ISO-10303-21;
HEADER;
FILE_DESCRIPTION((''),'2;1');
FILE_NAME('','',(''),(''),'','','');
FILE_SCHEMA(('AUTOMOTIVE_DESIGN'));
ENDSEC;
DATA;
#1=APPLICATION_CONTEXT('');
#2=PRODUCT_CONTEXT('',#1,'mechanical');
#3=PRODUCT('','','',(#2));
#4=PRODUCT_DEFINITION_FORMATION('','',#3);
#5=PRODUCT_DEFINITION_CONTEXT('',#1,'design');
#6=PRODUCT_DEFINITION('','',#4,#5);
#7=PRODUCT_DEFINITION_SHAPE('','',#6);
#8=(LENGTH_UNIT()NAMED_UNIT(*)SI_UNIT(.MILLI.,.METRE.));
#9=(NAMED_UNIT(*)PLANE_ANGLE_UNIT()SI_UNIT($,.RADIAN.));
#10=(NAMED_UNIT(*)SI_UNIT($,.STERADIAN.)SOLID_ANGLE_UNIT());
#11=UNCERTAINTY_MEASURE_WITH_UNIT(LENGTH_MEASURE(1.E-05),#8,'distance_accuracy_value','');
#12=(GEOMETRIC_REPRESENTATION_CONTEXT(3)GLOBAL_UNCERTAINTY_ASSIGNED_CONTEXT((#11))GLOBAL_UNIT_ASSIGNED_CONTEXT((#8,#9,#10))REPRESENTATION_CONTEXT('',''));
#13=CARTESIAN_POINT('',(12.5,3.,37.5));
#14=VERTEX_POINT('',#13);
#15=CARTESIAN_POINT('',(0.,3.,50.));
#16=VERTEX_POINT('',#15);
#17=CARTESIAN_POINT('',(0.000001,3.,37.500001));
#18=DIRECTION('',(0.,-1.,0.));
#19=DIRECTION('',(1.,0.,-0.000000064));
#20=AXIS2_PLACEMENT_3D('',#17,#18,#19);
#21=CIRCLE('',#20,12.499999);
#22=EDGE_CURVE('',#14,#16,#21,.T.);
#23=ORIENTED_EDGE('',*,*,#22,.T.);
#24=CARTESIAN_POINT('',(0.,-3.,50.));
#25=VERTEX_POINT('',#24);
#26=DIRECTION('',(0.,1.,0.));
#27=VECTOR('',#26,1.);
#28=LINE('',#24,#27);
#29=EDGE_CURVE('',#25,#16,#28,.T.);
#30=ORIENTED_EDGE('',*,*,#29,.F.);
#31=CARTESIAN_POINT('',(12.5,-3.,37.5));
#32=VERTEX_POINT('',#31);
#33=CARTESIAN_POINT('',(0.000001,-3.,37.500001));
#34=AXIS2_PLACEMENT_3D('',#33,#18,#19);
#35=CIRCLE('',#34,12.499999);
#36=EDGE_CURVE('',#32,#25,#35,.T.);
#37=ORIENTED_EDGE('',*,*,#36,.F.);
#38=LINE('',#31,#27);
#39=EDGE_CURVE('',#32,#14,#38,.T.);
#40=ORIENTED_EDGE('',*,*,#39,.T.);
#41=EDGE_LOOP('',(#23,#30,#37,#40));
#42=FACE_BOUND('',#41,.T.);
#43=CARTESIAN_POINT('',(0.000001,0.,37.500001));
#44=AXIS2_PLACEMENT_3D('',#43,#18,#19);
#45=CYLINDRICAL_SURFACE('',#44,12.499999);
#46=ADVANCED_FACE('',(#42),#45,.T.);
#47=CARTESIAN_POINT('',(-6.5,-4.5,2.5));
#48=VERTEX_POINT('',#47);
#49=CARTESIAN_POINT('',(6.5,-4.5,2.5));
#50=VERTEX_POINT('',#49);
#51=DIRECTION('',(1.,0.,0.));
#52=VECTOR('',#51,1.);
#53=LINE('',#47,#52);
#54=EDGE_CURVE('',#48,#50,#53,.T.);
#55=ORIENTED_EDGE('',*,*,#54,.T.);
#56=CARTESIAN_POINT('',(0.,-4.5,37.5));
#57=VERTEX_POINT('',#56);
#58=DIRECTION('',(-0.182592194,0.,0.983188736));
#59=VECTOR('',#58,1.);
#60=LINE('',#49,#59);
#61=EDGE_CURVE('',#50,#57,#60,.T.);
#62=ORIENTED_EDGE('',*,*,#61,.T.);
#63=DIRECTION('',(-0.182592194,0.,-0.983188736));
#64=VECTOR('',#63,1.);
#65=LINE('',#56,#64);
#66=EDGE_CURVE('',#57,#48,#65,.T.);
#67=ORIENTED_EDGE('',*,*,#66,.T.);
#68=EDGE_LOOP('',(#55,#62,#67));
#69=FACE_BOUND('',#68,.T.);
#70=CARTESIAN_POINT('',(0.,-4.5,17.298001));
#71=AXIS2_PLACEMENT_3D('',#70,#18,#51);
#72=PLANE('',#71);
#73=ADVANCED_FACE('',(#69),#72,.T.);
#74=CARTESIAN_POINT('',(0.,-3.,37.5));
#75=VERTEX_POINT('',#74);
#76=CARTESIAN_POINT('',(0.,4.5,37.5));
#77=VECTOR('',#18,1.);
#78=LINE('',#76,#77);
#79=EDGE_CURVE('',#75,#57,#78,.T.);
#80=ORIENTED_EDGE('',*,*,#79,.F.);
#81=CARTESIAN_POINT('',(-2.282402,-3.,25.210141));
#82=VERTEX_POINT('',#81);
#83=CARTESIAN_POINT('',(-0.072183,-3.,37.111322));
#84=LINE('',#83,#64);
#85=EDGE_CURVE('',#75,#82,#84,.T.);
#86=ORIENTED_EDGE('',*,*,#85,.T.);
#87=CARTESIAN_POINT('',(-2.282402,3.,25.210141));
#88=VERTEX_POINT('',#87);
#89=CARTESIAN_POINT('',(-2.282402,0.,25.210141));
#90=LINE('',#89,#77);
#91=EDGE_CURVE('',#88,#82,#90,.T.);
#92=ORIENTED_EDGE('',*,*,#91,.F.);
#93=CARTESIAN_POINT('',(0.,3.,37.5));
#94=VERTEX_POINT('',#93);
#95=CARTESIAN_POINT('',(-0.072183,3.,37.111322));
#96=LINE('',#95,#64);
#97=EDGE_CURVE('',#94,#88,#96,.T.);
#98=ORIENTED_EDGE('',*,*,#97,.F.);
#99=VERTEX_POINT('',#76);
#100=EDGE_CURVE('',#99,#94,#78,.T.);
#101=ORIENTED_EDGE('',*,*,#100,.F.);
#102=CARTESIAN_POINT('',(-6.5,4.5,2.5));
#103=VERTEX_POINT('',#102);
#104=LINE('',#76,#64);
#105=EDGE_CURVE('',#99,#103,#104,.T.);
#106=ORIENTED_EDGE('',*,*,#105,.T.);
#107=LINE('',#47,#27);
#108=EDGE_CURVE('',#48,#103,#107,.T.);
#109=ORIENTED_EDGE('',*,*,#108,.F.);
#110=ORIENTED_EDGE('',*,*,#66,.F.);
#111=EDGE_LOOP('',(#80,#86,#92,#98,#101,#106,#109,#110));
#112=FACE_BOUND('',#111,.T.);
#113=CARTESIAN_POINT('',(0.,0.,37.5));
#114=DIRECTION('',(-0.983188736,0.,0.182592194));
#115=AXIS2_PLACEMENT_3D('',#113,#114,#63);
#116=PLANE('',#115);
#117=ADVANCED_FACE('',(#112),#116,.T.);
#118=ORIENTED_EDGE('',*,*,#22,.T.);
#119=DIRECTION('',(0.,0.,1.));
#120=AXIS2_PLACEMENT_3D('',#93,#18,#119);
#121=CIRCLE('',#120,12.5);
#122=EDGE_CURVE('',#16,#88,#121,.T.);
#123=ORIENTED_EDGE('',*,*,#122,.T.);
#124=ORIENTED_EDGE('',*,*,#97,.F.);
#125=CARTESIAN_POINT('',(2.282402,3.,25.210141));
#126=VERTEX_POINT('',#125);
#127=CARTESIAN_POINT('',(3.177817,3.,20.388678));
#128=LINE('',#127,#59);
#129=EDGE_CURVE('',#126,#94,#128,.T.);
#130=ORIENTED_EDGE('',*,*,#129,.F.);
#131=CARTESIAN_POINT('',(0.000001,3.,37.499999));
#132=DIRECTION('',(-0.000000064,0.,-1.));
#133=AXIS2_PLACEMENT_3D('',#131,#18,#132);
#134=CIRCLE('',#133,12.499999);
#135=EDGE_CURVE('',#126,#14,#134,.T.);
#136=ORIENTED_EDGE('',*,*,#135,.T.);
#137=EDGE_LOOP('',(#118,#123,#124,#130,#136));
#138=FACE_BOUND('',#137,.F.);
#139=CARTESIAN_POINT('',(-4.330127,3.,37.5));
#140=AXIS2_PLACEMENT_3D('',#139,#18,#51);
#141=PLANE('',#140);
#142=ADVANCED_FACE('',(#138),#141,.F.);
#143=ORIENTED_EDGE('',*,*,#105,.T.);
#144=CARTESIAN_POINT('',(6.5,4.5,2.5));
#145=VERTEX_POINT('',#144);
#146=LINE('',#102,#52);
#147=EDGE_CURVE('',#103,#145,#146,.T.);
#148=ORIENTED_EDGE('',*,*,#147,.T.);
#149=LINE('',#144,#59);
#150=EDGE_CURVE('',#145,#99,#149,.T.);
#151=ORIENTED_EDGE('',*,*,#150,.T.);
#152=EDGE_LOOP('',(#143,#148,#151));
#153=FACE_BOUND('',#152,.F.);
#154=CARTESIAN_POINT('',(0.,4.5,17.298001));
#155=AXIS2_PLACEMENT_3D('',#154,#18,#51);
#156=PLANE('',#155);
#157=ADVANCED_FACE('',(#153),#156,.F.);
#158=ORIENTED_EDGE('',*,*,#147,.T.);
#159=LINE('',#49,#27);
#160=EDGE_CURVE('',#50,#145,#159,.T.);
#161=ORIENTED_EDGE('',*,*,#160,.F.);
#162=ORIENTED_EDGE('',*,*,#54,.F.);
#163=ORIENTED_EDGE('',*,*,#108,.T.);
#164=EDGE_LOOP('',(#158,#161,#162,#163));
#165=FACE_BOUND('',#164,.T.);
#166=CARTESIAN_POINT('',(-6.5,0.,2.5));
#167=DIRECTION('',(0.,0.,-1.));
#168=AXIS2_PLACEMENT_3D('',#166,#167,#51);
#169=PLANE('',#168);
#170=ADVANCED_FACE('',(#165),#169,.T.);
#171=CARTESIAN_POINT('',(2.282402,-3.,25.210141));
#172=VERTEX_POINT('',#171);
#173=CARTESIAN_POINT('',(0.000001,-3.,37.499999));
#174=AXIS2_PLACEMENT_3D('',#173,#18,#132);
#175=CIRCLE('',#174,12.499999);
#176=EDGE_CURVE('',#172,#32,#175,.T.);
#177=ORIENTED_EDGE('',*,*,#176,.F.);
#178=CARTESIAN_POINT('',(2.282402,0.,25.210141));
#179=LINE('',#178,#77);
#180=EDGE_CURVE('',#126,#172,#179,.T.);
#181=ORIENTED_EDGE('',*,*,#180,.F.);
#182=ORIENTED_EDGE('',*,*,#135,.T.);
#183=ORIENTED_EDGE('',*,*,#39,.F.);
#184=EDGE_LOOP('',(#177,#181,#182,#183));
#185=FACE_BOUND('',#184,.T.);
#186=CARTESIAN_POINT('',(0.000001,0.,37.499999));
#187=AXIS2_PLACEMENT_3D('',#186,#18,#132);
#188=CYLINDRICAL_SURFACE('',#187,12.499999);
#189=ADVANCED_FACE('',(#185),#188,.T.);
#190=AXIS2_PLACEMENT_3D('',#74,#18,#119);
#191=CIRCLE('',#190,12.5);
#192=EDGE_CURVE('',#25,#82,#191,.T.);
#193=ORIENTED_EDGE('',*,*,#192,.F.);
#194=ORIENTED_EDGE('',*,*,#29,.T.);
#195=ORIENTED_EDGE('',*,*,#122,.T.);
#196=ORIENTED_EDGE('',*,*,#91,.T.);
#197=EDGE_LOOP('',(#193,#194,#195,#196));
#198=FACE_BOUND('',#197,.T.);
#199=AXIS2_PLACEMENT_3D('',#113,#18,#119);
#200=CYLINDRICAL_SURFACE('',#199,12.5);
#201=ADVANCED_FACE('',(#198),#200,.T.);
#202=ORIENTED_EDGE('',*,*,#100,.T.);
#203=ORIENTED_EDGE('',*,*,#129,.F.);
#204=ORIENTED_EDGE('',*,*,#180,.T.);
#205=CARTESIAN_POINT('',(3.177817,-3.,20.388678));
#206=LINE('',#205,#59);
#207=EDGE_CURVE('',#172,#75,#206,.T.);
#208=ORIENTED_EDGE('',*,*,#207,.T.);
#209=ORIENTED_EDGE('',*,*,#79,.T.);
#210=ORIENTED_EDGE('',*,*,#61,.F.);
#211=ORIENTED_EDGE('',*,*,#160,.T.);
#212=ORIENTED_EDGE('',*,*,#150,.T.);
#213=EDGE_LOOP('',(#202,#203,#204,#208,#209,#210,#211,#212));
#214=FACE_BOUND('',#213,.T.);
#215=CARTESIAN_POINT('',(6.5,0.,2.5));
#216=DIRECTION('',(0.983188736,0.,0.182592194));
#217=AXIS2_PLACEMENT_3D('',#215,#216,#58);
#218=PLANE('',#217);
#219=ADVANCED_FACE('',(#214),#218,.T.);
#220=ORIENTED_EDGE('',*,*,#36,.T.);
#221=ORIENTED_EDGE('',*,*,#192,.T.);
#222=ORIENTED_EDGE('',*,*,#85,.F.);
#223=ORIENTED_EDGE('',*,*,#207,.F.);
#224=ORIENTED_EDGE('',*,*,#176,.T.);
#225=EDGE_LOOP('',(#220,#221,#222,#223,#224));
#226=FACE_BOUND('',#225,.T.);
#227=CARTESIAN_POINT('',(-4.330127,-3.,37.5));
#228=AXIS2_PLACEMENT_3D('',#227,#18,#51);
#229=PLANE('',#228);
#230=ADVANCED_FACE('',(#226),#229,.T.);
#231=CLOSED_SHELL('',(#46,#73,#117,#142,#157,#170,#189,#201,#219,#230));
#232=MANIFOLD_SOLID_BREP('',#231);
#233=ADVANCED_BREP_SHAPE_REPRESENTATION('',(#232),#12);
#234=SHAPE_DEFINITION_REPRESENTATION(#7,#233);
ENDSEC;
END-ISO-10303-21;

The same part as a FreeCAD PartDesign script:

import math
import FreeCAD as App
import Part
import Sketcher

V = App.Vector


def add_polygon(sketch, points):
    """Adds a closed chain of lines whose ends are joined by coincident constraints."""
    first, n = sketch.GeometryCount, len(points)
    for a, b in zip(points, points[1:] + points[:1]):
        sketch.addGeometry(Part.LineSegment(App.Vector(*a, 0), App.Vector(*b, 0)), False)
    for i in range(n):
        sketch.addConstraint(Sketcher.Constraint("Coincident", first + i, 2, first + (i + 1) % n, 1))

doc = App.newDocument("Part")
params = doc.addObject("Spreadsheet::Sheet", "Params")
for row, (alias, value) in enumerate([
    ("sketch1_radius", "12.5 mm"),
    ("pad1_length", "6 mm"),
    ("sketch2_width", "13 mm"),
    ("pad2_length", "9 mm"),
], start=1):
    params.set(f"A{row}", alias)
    params.set(f"B{row}", "=" + value)
    params.setAlias(f"B{row}", alias)

body = doc.addObject("PartDesign::Body", "Body")

# Sketch on XZ plane
sketch1 = body.newObject("Sketcher::SketchObject", "Sketch")
sketch1.AttachmentSupport = (doc.getObject("XZ_Plane"), [""])
sketch1.MapMode = "FlatFace"
sketch1.addGeometry([
    Part.ArcOfCircle(Part.Circle(V(0, 38, 0), V(0, 0, 1), 12), math.radians(90), math.radians(270)),
    Part.ArcOfCircle(Part.Circle(V(0, 37, 0), V(0, 0, 1), 12), math.radians(-90), math.radians(0)),
    Part.ArcOfCircle(Part.Circle(V(0, 38, 0), V(0, 0, 1), 12), math.radians(0), math.radians(90)),
], False)
sketch1.addConstraint([
    Sketcher.Constraint("Tangent", 0, 2, 1, 1),
    Sketcher.Constraint("Tangent", 1, 2, 2, 1),
    Sketcher.Constraint("Tangent", 2, 2, 0, 1),
    Sketcher.Constraint("PointOnObject", 0, 3, -2),
    Sketcher.Constraint("PointOnObject", 0, 2, -2),
    Sketcher.Constraint("PointOnObject", 2, 2, -2),
    Sketcher.Constraint("Horizontal", 2, 3, 1, 2),
    Sketcher.Constraint("Radius", 0, 12.5),
    Sketcher.Constraint("DistanceY", -1, 1, 0, 2, 25.0),
])
sketch1.setExpression("Constraints[7]", "Params.sketch1_radius")
pad1 = body.newObject("PartDesign::Pad", "Pad")
pad1.Profile = sketch1
pad1.setExpression("Length", "Params.pad1_length")
pad1.Midplane = True

# Sketch on XZ plane
sketch2 = body.newObject("Sketcher::SketchObject", "Sketch001")
sketch2.AttachmentSupport = (doc.getObject("XZ_Plane"), [""])
sketch2.MapMode = "FlatFace"
add_polygon(sketch2, [(6, 2), (0, 38), (-6, 2)])  # lines 0-2
sketch2.addConstraint([
    Sketcher.Constraint("Horizontal", 2),
    Sketcher.Constraint("PointOnObject", 0, 2, -2),
    Sketcher.Constraint("Equal", 0, 1),
    Sketcher.Constraint("DistanceX", 2, 1, 2, 2, 13.0),
    Sketcher.Constraint("DistanceY", 1, 2, 0, 2, 35.0),
    Sketcher.Constraint("DistanceY", -1, 1, 0, 2, 37.5),
])
sketch2.setExpression("Constraints[6]", "Params.sketch2_width")
pad2 = body.newObject("PartDesign::Pad", "Pad001")
pad2.Profile = sketch2
pad2.setExpression("Length", "Params.pad2_length")
pad2.Midplane = True
body2 = doc.addObject("PartDesign::Body", "Body001")
doc.recompute()

body2.BaseFeature = body
doc.recompute()

mirroring = doc.addObject("Part::Mirroring", "Mirroring")
mirroring.Source = body
mirroring.Base = V(0, 0, 0)
mirroring.Normal = V(0, -1, 0)
body3 = doc.addObject("PartDesign::Body", "Body002")
body3.BaseFeature = mirroring
boolean = body2.newObject("PartDesign::Boolean", "Boolean")
boolean.Type = "Fuse"
boolean.addObjects([body3])
doc.recompute()
mirroring.Visibility = False

doc.recompute()
